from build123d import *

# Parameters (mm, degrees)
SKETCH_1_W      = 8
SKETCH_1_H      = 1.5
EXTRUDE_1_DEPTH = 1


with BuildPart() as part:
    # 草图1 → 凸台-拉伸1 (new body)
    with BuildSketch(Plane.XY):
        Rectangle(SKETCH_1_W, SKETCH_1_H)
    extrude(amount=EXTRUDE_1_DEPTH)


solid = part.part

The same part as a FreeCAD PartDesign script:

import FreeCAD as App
import Part
import Sketcher

V = App.Vector
Q = App.Units.Quantity


def add_polygon(sketch, points):
    """Adds a closed chain of lines whose ends are joined by coincident constraints."""
    first, n = sketch.GeometryCount, len(points)
    for a, b in zip(points, points[1:] + points[:1]):
        sketch.addGeometry(Part.LineSegment(App.Vector(*a, 0), App.Vector(*b, 0)), False)
    for i in range(n):
        sketch.addConstraint(Sketcher.Constraint("Coincident", first + i, 2, first + (i + 1) % n, 1))

doc = App.newDocument("Part")
body = doc.addObject("PartDesign::Body", "Body")

# Sketch on XY plane
sketch1 = doc.addObject("Sketcher::SketchObject", "Sketch")
body.addObject(sketch1)
sketch1.AttachmentSupport = (doc.XY_Plane, [""])
sketch1.MapMode = "FlatFace"
add_polygon(sketch1, [(-4, 0.75), (-4, -0.75), (4, -0.75), (4, 0.75)])  # lines 0-3
sketch1.addConstraint(Sketcher.Constraint("Vertical", 0))
sketch1.addConstraint(Sketcher.Constraint("Horizontal", 1))
sketch1.addConstraint(Sketcher.Constraint("Vertical", 2))
sketch1.addConstraint(Sketcher.Constraint("Horizontal", 3))
sketch1.addConstraint(Sketcher.Constraint("Symmetric", 0, 2, 2, 2, -1, 1))
sketch1.addConstraint(Sketcher.Constraint("DistanceX", 1, 1, 1, 2, Q("8 mm")))
sketch1.addConstraint(Sketcher.Constraint("DistanceY", 0, 2, 0, 1, Q("1.5 mm")))
pad1 = doc.addObject("PartDesign::Pad", "Pad")
body.addObject(pad1)
pad1.Profile = sketch1
pad1.Length = 1

doc.recompute()
